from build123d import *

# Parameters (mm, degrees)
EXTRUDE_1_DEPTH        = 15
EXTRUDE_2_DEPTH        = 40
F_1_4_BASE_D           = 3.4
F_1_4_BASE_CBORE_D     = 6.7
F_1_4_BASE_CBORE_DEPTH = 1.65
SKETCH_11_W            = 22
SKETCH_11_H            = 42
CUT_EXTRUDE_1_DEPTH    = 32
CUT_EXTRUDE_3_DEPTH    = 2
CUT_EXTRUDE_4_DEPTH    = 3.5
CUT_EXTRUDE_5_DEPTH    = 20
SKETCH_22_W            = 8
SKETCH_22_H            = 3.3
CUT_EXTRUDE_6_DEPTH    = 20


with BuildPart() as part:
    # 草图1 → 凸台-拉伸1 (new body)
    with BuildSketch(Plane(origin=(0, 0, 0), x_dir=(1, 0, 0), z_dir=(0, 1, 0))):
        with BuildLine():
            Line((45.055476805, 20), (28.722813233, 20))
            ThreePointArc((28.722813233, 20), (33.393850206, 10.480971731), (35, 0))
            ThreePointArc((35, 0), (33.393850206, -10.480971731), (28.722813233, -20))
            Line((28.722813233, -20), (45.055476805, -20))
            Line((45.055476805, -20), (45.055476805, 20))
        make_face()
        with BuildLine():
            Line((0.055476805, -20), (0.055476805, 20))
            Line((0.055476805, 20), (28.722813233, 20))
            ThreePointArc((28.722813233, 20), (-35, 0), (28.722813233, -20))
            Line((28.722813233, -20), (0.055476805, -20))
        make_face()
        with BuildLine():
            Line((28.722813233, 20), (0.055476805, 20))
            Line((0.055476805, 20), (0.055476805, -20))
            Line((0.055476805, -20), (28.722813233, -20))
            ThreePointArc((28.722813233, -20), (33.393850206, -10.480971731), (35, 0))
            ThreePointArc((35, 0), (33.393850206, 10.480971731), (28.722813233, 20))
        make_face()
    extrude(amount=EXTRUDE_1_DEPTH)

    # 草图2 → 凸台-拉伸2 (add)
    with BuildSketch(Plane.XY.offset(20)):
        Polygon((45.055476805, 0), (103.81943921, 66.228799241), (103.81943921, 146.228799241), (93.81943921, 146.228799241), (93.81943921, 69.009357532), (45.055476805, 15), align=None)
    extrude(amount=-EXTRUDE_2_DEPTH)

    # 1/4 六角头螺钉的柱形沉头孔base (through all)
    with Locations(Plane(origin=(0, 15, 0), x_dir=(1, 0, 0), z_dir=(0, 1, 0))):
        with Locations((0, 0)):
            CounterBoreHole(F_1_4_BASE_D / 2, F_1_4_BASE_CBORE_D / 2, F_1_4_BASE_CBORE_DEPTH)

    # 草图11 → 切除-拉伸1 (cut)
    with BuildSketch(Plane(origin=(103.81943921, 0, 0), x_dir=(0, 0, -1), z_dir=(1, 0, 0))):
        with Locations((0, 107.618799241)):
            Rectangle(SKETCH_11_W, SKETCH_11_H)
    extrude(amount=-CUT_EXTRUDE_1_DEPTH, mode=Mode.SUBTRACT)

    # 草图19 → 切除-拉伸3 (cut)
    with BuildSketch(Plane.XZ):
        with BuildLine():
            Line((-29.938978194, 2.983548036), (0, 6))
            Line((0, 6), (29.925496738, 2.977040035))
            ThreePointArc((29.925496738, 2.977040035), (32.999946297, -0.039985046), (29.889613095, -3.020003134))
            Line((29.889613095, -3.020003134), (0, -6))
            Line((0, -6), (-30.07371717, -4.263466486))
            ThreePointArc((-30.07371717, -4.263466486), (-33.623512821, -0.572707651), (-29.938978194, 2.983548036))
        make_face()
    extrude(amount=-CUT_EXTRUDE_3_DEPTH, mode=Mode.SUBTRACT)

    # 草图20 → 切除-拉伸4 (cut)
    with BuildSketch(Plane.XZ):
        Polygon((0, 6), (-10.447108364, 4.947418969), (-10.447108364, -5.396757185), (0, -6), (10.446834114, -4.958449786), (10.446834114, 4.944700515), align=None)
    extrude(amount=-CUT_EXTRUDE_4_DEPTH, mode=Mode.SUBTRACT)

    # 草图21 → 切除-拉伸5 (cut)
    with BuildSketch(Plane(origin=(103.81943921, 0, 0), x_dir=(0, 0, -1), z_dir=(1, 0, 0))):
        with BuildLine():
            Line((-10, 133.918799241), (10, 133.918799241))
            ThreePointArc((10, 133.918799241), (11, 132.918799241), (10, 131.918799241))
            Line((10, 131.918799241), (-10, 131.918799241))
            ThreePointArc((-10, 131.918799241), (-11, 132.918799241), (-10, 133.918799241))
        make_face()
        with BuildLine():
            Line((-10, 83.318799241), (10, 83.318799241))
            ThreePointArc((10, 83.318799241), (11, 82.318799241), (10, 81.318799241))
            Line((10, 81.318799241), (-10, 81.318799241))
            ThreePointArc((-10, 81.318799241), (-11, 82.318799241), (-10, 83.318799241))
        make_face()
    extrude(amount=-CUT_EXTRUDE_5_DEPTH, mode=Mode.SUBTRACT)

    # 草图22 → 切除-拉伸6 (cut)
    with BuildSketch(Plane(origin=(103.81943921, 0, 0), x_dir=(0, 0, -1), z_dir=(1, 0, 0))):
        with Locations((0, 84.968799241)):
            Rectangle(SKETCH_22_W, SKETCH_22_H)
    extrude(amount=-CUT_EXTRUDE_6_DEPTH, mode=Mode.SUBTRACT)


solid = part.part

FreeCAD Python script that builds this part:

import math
import FreeCAD as App
import Part
import Sketcher
Q = App.Units.Quantity


def add_polygon(sketch, points):
    """Adds a closed chain of lines whose ends are joined by coincident constraints."""
    first, n = sketch.GeometryCount, len(points)
    for a, b in zip(points, points[1:] + points[:1]):
        sketch.addGeometry(Part.LineSegment(App.Vector(*a, 0), App.Vector(*b, 0)), False)
    for i in range(n):
        sketch.addConstraint(Sketcher.Constraint("Coincident", first + i, 2, first + (i + 1) % n, 1))

doc = App.newDocument("Part")
body = doc.addObject("PartDesign::Body", "Body")

sketch1 = doc.addObject("Sketcher::SketchObject", "Sketch")
body.addObject(sketch1)
sketch1.AttachmentSupport = (doc.XZ_Plane, [""])
sketch1.MapMode = "FlatFace"
sketch1.addGeometry(Part.LineSegment(App.Vector(28.722813, 20, 0), App.Vector(45.055477, 20, 0)), False)
sketch1.addGeometry(Part.LineSegment(App.Vector(45.055477, 20, 0), App.Vector(45.055477, -20, 0)), False)
sketch1.addGeometry(Part.LineSegment(App.Vector(45.055477, -20, 0), App.Vector(28.722813, -20, 0)), False)
sketch1.addGeometry(Part.ArcOfCircle(Part.Circle(App.Vector(0, 0, 0), App.Vector(0, 0, 1), 35), math.radians(34.849905), math.radians(325.150095)), False)
sketch1.addConstraint(Sketcher.Constraint("Coincident", 0, 2, 1, 1))
sketch1.addConstraint(Sketcher.Constraint("Coincident", 1, 2, 2, 1))
sketch1.addConstraint(Sketcher.Constraint("Coincident", 2, 2, 3, 2))
sketch1.addConstraint(Sketcher.Constraint("Coincident", 3, 1, 0, 1))
sketch1.addConstraint(Sketcher.Constraint("Horizontal", 0))
sketch1.addConstraint(Sketcher.Constraint("Vertical", 1))
sketch1.addConstraint(Sketcher.Constraint("Horizontal", 2))
sketch1.addConstraint(Sketcher.Constraint("Coincident", 3, 3, -1, 1))
sketch1.addConstraint(Sketcher.Constraint("Vertical", 2, 2, 3, 1))
sketch1.addConstraint(Sketcher.Constraint("Radius", 3, Q("35 mm")))
sketch1.addConstraint(Sketcher.Constraint("DistanceY", 1, 2, 1, 1, Q("40 mm")))
sketch1.addConstraint(Sketcher.Constraint("DistanceX", 0, 1, 0, 2, Q("16.332664 mm")))
pad1 = doc.addObject("PartDesign::Pad", "Pad")
body.addObject(pad1)
pad1.Profile = sketch1
pad1.Length = 15
pad1.Reversed = True

sketch2 = doc.addObject("Sketcher::SketchObject", "Sketch001")
body.addObject(sketch2)
sketch2.AttachmentSupport = (doc.XY_Plane, [""])
sketch2.MapMode = "FlatFace"
sketch2.AttachmentOffset = App.Placement(App.Vector(0, 0, 20), App.Rotation())
add_polygon(sketch2, [(45.055477, 0), (103.819439, 66.228799), (103.819439, 146.228799), (93.819439, 146.228799), (93.819439, 69.009358), (45.055477, 15)])
sketch2.addConstraint(Sketcher.Constraint("Vertical", 1))
sketch2.addConstraint(Sketcher.Constraint("Horizontal", 2))
sketch2.addConstraint(Sketcher.Constraint("Vertical", 3))
sketch2.addConstraint(Sketcher.Constraint("Vertical", 5))
sketch2.addConstraint(Sketcher.Constraint("PointOnObject", 5, 2, -1))
sketch2.addConstraint(Sketcher.Constraint("DistanceX", 2, 2, 2, 1, Q("10 mm")))
sketch2.addConstraint(Sketcher.Constraint("DistanceY", 1, 1, 1, 2, Q("80 mm")))
sketch2.addConstraint(Sketcher.Constraint("DistanceY", 5, 2, 5, 1, Q("15 mm")))
sketch2.addConstraint(Sketcher.Constraint("DistanceY", 3, 2, 3, 1, Q("77.219442 mm")))
sketch2.addConstraint(Sketcher.Constraint("DistanceY", -1, 1, 0, 2, Q("66.228799 mm")))
sketch2.addConstraint(Sketcher.Constraint("Distance", 0, Q("88.540709 mm")))
sketch2.addConstraint(Sketcher.Constraint("DistanceX", -1, 1, 0, 2, Q("103.819439 mm")))
pad2 = doc.addObject("PartDesign::Pad", "Pad001")
body.addObject(pad2)
pad2.Profile = sketch2
pad2.Length = 40
pad2.Reversed = True

sketch3 = doc.addObject("Sketcher::SketchObject", "Sketch002")
body.addObject(sketch3)
sketch3.AttachmentSupport = (doc.XZ_Plane, [""])
sketch3.MapMode = "FlatFace"
sketch3.AttachmentOffset = App.Placement(App.Vector(0, 0, -15), App.Rotation())
sketch3.addGeometry(Part.Circle(App.Vector(0, 0, 0), App.Vector(0, 0, 1), 1.7), False)
sketch3.addConstraint(Sketcher.Constraint("Coincident", 0, 3, -1, 1))
sketch3.addConstraint(Sketcher.Constraint("Diameter", 0, Q("3.4 mm")))
doc.recompute()
hole = doc.addObject("PartDesign::Hole", "Hole")
body.addObject(hole)
hole.Profile = sketch3
hole.ThreadType = "None"
hole.Diameter = 3.4
hole.DepthType = "ThroughAll"
hole.HoleCutType = "Counterbore"
hole.HoleCutDiameter = 6.7
hole.HoleCutDepth = 1.65
hole.Reversed = True

sketch4 = doc.addObject("Sketcher::SketchObject", "Sketch003")
body.addObject(sketch4)
sketch4.AttachmentSupport = (doc.YZ_Plane, [""])
sketch4.MapMode = "FlatFace"
sketch4.AttachmentOffset = App.Placement(App.Vector(0, 0, 103.819439), App.Rotation())
add_polygon(sketch4, [(128.618799, 11), (86.618799, 11), (86.618799, -11), (128.618799, -11)])
sketch4.addConstraint(Sketcher.Constraint("Horizontal", 0))
sketch4.addConstraint(Sketcher.Constraint("Vertical", 1))
sketch4.addConstraint(Sketcher.Constraint("Horizontal", 2))
sketch4.addConstraint(Sketcher.Constraint("Vertical", 3))
sketch4.addConstraint(Sketcher.Constraint("DistanceX", 0, 2, 0, 1, Q("42 mm")))
sketch4.addConstraint(Sketcher.Constraint("DistanceY", 1, 2, 1, 1, Q("22 mm")))
sketch4.addConstraint(Sketcher.Constraint("DistanceY", -1, 1, 0, 2, Q("11 mm")))
sketch4.addConstraint(Sketcher.Constraint("DistanceX", -1, 1, 0, 2, Q("86.618799 mm")))
pocket1 = doc.addObject("PartDesign::Pocket", "Pocket")
body.addObject(pocket1)
pocket1.Profile = sketch4
pocket1.Length = 32

sketch5 = doc.addObject("Sketcher::SketchObject", "Sketch004")
body.addObject(sketch5)
sketch5.AttachmentSupport = (doc.XZ_Plane, [""])
sketch5.MapMode = "FlatFace"
sketch5.addGeometry(Part.LineSegment(App.Vector(0, 6, 0), App.Vector(-29.938978, 2.983548, 0)), False)
sketch5.addGeometry(Part.ArcOfCircle(Part.Circle(App.Vector(-30, -0.640077, 0), App.Vector(0, 0, 1), 3.624139), math.radians(89.035231), math.radians(268.834489)), False)
sketch5.addGeometry(Part.LineSegment(App.Vector(-30.073717, -4.263466, 0), App.Vector(0, -6, 0)), False)
sketch5.addGeometry(Part.LineSegment(App.Vector(0, -6, 0), App.Vector(29.889613, -3.020003, 0)), False)
sketch5.addGeometry(Part.ArcOfCircle(Part.Circle(App.Vector(30, -0.022035, 0), App.Vector(0, 0, 1), 3), math.radians(-92.108711), math.radians(91.423054)), False)
sketch5.addGeometry(Part.LineSegment(App.Vector(29.925497, 2.97704, 0), App.Vector(0, 6, 0)), False)
sketch5.addConstraint(Sketcher.Constraint("Coincident", 0, 2, 1, 1))
sketch5.addConstraint(Sketcher.Constraint("Coincident", 1, 2, 2, 1))
sketch5.addConstraint(Sketcher.Constraint("Coincident", 2, 2, 3, 1))
sketch5.addConstraint(Sketcher.Constraint("Coincident", 3, 2, 4, 1))
sketch5.addConstraint(Sketcher.Constraint("Coincident", 4, 2, 5, 1))
sketch5.addConstraint(Sketcher.Constraint("Coincident", 5, 2, 0, 1))
sketch5.addConstraint(Sketcher.Constraint("Symmetric", 2, 2, 5, 2, -1, 1))
sketch5.addConstraint(Sketcher.Constraint("PointOnObject", 2, 2, -2))
sketch5.addConstraint(Sketcher.Constraint("Radius", 4, Q("3 mm")))
sketch5.addConstraint(Sketcher.Constraint("DistanceX", 1, 3, -1, 1, Q("30 mm")))
sketch5.addConstraint(Sketcher.Constraint("DistanceX", -1, 1, 4, 3, Q("30 mm")))
sketch5.addConstraint(Sketcher.Constraint("DistanceY", 2, 2, -1, 1, Q("6 mm")))
sketch5.addConstraint(Sketcher.Constraint("Radius", 1, Q("3.624139 mm")))
sketch5.addConstraint(Sketcher.Constraint("Distance", 3, Q("30.037799 mm")))
sketch5.addConstraint(Sketcher.Constraint("Distance", 2, Q("30.123811 mm")))
sketch5.addConstraint(Sketcher.Constraint("DistanceX", 0, 2, -1, 1, Q("29.938978 mm")))
sketch5.addConstraint(Sketcher.Constraint("DistanceY", -1, 1, 0, 2, Q("2.983548 mm")))
sketch5.addConstraint(Sketcher.Constraint("DistanceY", -1, 1, 4, 2, Q("2.97704 mm")))
sketch5.addConstraint(Sketcher.Constraint("DistanceY", 1, 2, 4, 3, Q("4.241432 mm")))
pocket2 = doc.addObject("PartDesign::Pocket", "Pocket001")
body.addObject(pocket2)
pocket2.Profile = sketch5
pocket2.Length = 2

sketch6 = doc.addObject("Sketcher::SketchObject", "Sketch005")
body.addObject(sketch6)
sketch6.AttachmentSupport = (doc.XZ_Plane, [""])
sketch6.MapMode = "FlatFace"
add_polygon(sketch6, [(0, 6), (-10.447108, 4.947419), (-10.447108, -5.396757), (0, -6), (10.446834, -4.95845), (10.446834, 4.944701)])
sketch6.addConstraint(Sketcher.Constraint("Vertical", 1))
sketch6.addConstraint(Sketcher.Constraint("Vertical", 4))
sketch6.addConstraint(Sketcher.Constraint("Symmetric", 2, 2, 5, 2, -1, 1))
sketch6.addConstraint(Sketcher.Constraint("PointOnObject", 2, 2, -2))
sketch6.addConstraint(Sketcher.Constraint("Equal", 0, 5))
sketch6.addConstraint(Sketcher.Constraint("DistanceY", 2, 2, -1, 1, Q("6 mm")))
sketch6.addConstraint(Sketcher.Constraint("Distance", 0, Q("10.5 mm")))
sketch6.addConstraint(Sketcher.Constraint("DistanceY", 4, 1, 4, 2, Q("9.90315 mm")))
sketch6.addConstraint(Sketcher.Constraint("DistanceY", -1, 1, 4, 2, Q("4.944701 mm")))
sketch6.addConstraint(Sketcher.Constraint("Distance", 2, Q("10.46451 mm")))
sketch6.addConstraint(Sketcher.Constraint("DistanceY", 1, 2, 1, 1, Q("10.344176 mm")))
pocket3 = doc.addObject("PartDesign::Pocket", "Pocket002")
body.addObject(pocket3)
pocket3.Profile = sketch6
pocket3.Length = 3.5

sketch7 = doc.addObject("Sketcher::SketchObject", "Sketch006")
body.addObject(sketch7)
sketch7.AttachmentSupport = (doc.YZ_Plane, [""])
sketch7.MapMode = "FlatFace"
sketch7.AttachmentOffset = App.Placement(App.Vector(0, 0, 103.819439), App.Rotation())
sketch7.addGeometry(Part.LineSegment(App.Vector(133.918799, -10, 0), App.Vector(133.918799, 10, 0)), False)
sketch7.addGeometry(Part.ArcOfCircle(Part.Circle(App.Vector(132.918799, 10, 0), App.Vector(0, 0, 1), 1), math.radians(0), math.radians(180)), False)
sketch7.addGeometry(Part.LineSegment(App.Vector(131.918799, 10, 0), App.Vector(131.918799, -10, 0)), False)
sketch7.addGeometry(Part.ArcOfCircle(Part.Circle(App.Vector(132.918799, -10, 0), App.Vector(0, 0, 1), 1), math.radians(180), math.radians(360)), False)
sketch7.addGeometry(Part.LineSegment(App.Vector(83.318799, -10, 0), App.Vector(83.318799, 10, 0)), False)
sketch7.addGeometry(Part.ArcOfCircle(Part.Circle(App.Vector(82.318799, 10, 0), App.Vector(0, 0, 1), 1), math.radians(0), math.radians(180)), False)
sketch7.addGeometry(Part.LineSegment(App.Vector(81.318799, 10, 0), App.Vector(81.318799, -10, 0)), False)
sketch7.addGeometry(Part.ArcOfCircle(Part.Circle(App.Vector(82.318799, -10, 0), App.Vector(0, 0, 1), 1), math.radians(180), math.radians(360)), False)
sketch7.addConstraint(Sketcher.Constraint("Tangent", 0, 2, 1, 1))
sketch7.addConstraint(Sketcher.Constraint("Tangent", 1, 2, 2, 1))
sketch7.addConstraint(Sketcher.Constraint("Tangent", 2, 2, 3, 1))
sketch7.addConstraint(Sketcher.Constraint("Tangent", 3, 2, 0, 1))
sketch7.addConstraint(Sketcher.Constraint("Tangent", 4, 2, 5, 1))
sketch7.addConstraint(Sketcher.Constraint("Tangent", 5, 2, 6, 1))
sketch7.addConstraint(Sketcher.Constraint("Tangent", 6, 2, 7, 1))
sketch7.addConstraint(Sketcher.Constraint("Tangent", 7, 2, 4, 1))
sketch7.addConstraint(Sketcher.Constraint("Vertical", 0))
sketch7.addConstraint(Sketcher.Constraint("Vertical", 2))
sketch7.addConstraint(Sketcher.Constraint("Vertical", 4))
sketch7.addConstraint(Sketcher.Constraint("Vertical", 6))
sketch7.addConstraint(Sketcher.Constraint("Equal", 3, 5))
sketch7.addConstraint(Sketcher.Constraint("Horizontal", 1, 3, 5, 3))
sketch7.addConstraint(Sketcher.Constraint("Horizontal", 3, 3, 7, 3))
sketch7.addConstraint(Sketcher.Constraint("Radius", 1, Q("1 mm")))
sketch7.addConstraint(Sketcher.Constraint("DistanceY", 0, 1, 0, 2, Q("20 mm")))
sketch7.addConstraint(Sketcher.Constraint("DistanceY", -1, 1, 1, 3, Q("10 mm")))
sketch7.addConstraint(Sketcher.Constraint("DistanceX", 5, 3, 1, 3, Q("50.6 mm")))
sketch7.addConstraint(Sketcher.Constraint("DistanceX", -1, 1, 1, 3, Q("132.918799 mm")))
pocket4 = doc.addObject("PartDesign::Pocket", "Pocket003")
body.addObject(pocket4)
pocket4.Profile = sketch7
pocket4.Length = 20

sketch8 = doc.addObject("Sketcher::SketchObject", "Sketch007")
body.addObject(sketch8)
sketch8.AttachmentSupport = (doc.YZ_Plane, [""])
sketch8.MapMode = "FlatFace"
sketch8.AttachmentOffset = App.Placement(App.Vector(0, 0, 103.819439), App.Rotation())
add_polygon(sketch8, [(86.618799, 4), (83.318799, 4), (83.318799, -4), (86.618799, -4)])
sketch8.addConstraint(Sketcher.Constraint("Horizontal", 0))
sketch8.addConstraint(Sketcher.Constraint("Vertical", 1))
sketch8.addConstraint(Sketcher.Constraint("Horizontal", 2))
sketch8.addConstraint(Sketcher.Constraint("Vertical", 3))
sketch8.addConstraint(Sketcher.Constraint("DistanceY", 1, 2, 1, 1, Q("8 mm")))
sketch8.addConstraint(Sketcher.Constraint("DistanceX", 0, 2, 0, 1, Q("3.3 mm")))
sketch8.addConstraint(Sketcher.Constraint("DistanceY", -1, 1, 0, 2, Q("4 mm")))
sketch8.addConstraint(Sketcher.Constraint("DistanceX", -1, 1, 0, 2, Q("83.318799 mm")))
pocket5 = doc.addObject("PartDesign::Pocket", "Pocket004")
body.addObject(pocket5)
pocket5.Profile = sketch8
pocket5.Length = 20

doc.recompute()
